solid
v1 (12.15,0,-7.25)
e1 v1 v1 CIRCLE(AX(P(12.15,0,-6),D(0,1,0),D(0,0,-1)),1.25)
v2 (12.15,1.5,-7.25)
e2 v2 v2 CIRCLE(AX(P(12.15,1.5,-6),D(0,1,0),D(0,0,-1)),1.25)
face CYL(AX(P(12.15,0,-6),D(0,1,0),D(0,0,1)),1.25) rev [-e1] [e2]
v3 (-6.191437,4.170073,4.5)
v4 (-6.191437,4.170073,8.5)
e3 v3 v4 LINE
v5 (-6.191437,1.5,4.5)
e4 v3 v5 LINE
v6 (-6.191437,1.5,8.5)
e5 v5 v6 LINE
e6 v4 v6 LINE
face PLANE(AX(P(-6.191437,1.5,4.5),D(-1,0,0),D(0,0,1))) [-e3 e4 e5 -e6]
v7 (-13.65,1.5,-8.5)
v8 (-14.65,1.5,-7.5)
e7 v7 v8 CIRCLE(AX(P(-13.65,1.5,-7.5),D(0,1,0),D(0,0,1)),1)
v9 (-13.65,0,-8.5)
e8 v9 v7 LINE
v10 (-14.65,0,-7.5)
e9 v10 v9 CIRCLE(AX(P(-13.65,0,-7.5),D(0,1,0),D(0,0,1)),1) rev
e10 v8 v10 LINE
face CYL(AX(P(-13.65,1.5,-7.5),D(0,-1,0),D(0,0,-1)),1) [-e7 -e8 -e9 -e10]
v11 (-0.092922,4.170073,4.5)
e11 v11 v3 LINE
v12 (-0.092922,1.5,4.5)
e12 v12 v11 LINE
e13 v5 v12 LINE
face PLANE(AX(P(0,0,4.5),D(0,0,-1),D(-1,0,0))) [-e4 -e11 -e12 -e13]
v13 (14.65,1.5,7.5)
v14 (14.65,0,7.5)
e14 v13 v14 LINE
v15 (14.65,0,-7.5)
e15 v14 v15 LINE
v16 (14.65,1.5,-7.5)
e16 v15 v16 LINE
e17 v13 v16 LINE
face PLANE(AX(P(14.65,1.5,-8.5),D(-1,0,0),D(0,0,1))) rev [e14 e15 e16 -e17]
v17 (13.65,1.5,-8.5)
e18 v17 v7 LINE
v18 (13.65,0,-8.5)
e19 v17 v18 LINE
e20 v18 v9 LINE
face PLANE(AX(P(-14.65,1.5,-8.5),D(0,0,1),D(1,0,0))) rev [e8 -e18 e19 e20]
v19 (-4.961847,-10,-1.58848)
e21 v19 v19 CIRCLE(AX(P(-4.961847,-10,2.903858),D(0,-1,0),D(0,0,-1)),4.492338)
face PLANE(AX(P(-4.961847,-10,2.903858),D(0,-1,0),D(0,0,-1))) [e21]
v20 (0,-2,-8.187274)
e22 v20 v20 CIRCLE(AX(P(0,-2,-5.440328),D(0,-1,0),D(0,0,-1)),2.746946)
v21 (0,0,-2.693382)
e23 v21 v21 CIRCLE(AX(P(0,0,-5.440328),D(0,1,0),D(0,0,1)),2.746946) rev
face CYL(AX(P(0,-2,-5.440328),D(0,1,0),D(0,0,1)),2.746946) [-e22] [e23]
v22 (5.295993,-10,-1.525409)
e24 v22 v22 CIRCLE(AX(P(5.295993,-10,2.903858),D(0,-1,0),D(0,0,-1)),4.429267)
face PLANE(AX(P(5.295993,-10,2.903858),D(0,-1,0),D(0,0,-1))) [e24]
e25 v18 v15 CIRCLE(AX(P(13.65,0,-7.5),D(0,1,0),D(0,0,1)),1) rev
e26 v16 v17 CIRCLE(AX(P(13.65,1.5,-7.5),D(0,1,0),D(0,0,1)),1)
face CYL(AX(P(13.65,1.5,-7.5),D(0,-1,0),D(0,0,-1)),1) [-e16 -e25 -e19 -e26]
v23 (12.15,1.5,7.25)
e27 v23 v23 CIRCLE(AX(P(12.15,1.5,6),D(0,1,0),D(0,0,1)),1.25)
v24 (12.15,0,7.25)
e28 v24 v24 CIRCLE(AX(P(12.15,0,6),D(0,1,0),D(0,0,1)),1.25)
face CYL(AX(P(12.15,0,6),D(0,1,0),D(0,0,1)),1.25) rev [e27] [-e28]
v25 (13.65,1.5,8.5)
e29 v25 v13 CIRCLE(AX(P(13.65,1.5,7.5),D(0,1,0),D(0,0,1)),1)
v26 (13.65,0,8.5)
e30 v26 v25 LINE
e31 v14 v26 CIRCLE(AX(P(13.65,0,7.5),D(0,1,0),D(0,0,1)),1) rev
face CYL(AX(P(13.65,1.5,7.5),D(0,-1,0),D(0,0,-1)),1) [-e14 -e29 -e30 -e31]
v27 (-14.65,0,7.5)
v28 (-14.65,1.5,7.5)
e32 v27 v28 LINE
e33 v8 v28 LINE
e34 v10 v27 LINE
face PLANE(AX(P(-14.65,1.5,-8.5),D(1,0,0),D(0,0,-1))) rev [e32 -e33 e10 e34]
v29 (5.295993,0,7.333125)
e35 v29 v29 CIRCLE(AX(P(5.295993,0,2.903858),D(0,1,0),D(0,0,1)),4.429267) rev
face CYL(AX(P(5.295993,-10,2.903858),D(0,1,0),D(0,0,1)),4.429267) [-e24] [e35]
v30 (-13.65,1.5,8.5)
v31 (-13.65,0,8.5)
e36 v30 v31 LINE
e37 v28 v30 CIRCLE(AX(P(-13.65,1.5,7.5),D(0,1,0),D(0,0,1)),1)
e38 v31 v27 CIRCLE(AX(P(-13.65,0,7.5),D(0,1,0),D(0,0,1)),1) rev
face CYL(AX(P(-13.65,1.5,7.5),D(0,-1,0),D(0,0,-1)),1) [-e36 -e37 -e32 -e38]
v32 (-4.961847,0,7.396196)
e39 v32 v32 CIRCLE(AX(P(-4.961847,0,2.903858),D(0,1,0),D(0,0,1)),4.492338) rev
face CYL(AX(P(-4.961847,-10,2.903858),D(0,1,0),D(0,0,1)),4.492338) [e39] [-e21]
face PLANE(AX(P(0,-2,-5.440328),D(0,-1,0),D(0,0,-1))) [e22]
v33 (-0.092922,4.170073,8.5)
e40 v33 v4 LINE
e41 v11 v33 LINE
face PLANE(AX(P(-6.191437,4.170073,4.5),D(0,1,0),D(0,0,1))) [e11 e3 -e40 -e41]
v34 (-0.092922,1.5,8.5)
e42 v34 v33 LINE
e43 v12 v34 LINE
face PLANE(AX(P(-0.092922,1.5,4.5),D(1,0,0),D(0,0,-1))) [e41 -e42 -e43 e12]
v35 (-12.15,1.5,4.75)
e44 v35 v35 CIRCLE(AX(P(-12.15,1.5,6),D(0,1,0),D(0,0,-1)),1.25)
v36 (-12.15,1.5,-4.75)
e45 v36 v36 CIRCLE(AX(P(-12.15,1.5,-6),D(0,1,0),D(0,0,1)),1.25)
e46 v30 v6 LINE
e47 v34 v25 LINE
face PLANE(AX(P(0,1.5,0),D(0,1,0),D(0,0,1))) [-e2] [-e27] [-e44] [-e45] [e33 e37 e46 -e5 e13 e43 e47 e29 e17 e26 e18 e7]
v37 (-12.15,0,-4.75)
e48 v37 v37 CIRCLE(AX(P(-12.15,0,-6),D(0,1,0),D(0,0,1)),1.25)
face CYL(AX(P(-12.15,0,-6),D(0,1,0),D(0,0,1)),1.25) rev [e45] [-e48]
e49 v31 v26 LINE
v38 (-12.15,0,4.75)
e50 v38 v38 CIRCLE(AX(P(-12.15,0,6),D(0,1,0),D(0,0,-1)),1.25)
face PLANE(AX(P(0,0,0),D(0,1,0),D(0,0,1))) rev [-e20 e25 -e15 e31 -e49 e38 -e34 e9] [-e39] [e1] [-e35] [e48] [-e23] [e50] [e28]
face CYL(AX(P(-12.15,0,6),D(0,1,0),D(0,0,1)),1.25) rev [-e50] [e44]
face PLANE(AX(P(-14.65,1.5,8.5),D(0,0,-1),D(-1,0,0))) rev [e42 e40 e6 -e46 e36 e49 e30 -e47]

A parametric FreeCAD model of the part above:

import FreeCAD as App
import Part
import Sketcher
Q = App.Units.Quantity


def edges_at(feature, points):
    """Names of the edges that pass closest to the given points."""
    edges = feature.Shape.Edges
    near = lambda p: min(range(len(edges)), key=lambda i: edges[i].distToShape(Part.Vertex(*p))[0])
    return sorted({f"Edge{near(p) + 1}" for p in points})

doc = App.newDocument("Part")
body = doc.addObject("PartDesign::Body", "Body")

sketch1 = body.newObject("Sketcher::SketchObject", "Sketch")
sketch1.AttachmentSupport = (doc.getObject("XZ_Plane"), [""])
sketch1.MapMode = "FlatFace"
sketch1.addGeometry([
    Part.LineSegment(App.Vector(-14.65, -8.5, 0), App.Vector(-14.65, 8.5, 0)),
    Part.LineSegment(App.Vector(-14.65, 8.5, 0), App.Vector(14.65, 8.5, 0)),
    Part.LineSegment(App.Vector(14.65, 8.5, 0), App.Vector(14.65, -8.5, 0)),
    Part.LineSegment(App.Vector(14.65, -8.5, 0), App.Vector(-14.65, -8.5, 0)),
], False)
sketch1.addConstraint([
    Sketcher.Constraint("Coincident", 0, 2, 1, 1),
    Sketcher.Constraint("Coincident", 1, 2, 2, 1),
    Sketcher.Constraint("Coincident", 2, 2, 3, 1),
    Sketcher.Constraint("Coincident", 3, 2, 0, 1),
    Sketcher.Constraint("Vertical", 0),
    Sketcher.Constraint("Horizontal", 1),
    Sketcher.Constraint("Vertical", 2),
    Sketcher.Constraint("Horizontal", 3),
    Sketcher.Constraint("Symmetric", 0, 2, 2, 2, -1, 1),
    Sketcher.Constraint("DistanceY", 0, 1, 0, 2, Q("17 mm")),
    Sketcher.Constraint("DistanceX", 1, 1, 1, 2, Q("29.3 mm")),
])
pad1 = body.newObject("PartDesign::Pad", "Pad")
pad1.Profile = sketch1
pad1.Length = 1.5
pad1.Reversed = True

sketch2 = body.newObject("Sketcher::SketchObject", "Sketch001")
sketch2.AttachmentSupport = (doc.getObject("XZ_Plane"), [""])
sketch2.MapMode = "FlatFace"
sketch2.AttachmentOffset = App.Placement(App.Vector(0, 0, -1.5), App.Rotation())
sketch2.addGeometry([
    Part.Circle(App.Vector(-12.15, -6, 0), App.Vector(0, 0, 1), 1.25),
    Part.Circle(App.Vector(12.15, -6, 0), App.Vector(0, 0, 1), 1.25),
    Part.Circle(App.Vector(12.15, 6, 0), App.Vector(0, 0, 1), 1.25),
    Part.Circle(App.Vector(-12.15, 6, 0), App.Vector(0, 0, 1), 1.25),
], False)
sketch2.addConstraint([
    Sketcher.Constraint("Equal", 0, 1),
    Sketcher.Constraint("Equal", 1, 2),
    Sketcher.Constraint("Equal", 2, 3),
    Sketcher.Constraint("Symmetric", 0, 3, 2, 3, -1, 1),
    Sketcher.Constraint("Symmetric", 1, 3, 3, 3, -1, 1),
    Sketcher.Constraint("Symmetric", 0, 3, 1, 3, -2),
    Sketcher.Constraint("Diameter", 0, Q("2.5 mm")),
    Sketcher.Constraint("DistanceY", 0, 3, -1, 1, Q("6 mm")),
    Sketcher.Constraint("DistanceX", 0, 3, 1, 3, Q("24.3 mm")),
])
pocket1 = body.newObject("PartDesign::Pocket", "Pocket")
pocket1.Profile = sketch2
pocket1.Type = "ThroughAll"
pocket1.Reversed = True

sketch3 = body.newObject("Sketcher::SketchObject", "Sketch002")
sketch3.AttachmentSupport = (doc.getObject("XY_Plane"), [""])
sketch3.MapMode = "FlatFace"
sketch3.AttachmentOffset = App.Placement(App.Vector(0, 0, 8.5), App.Rotation())
sketch3.addGeometry([
    Part.LineSegment(App.Vector(-6.191437, 4.170073, 0), App.Vector(-6.191437, 1.5, 0)),
    Part.LineSegment(App.Vector(-6.191437, 1.5, 0), App.Vector(-0.092922, 1.5, 0)),
    Part.LineSegment(App.Vector(-0.092922, 1.5, 0), App.Vector(-0.092922, 4.170073, 0)),
    Part.LineSegment(App.Vector(-0.092922, 4.170073, 0), App.Vector(-6.191437, 4.170073, 0)),
], False)
sketch3.addConstraint([
    Sketcher.Constraint("Coincident", 0, 2, 1, 1),
    Sketcher.Constraint("Coincident", 1, 2, 2, 1),
    Sketcher.Constraint("Coincident", 2, 2, 3, 1),
    Sketcher.Constraint("Coincident", 3, 2, 0, 1),
    Sketcher.Constraint("Vertical", 0),
    Sketcher.Constraint("Horizontal", 1),
    Sketcher.Constraint("Vertical", 2),
    Sketcher.Constraint("Horizontal", 3),
    Sketcher.Constraint("DistanceY", -1, 1, 0, 2, Q("1.5 mm")),
    Sketcher.Constraint("DistanceX", 1, 1, 1, 2, Q("6.098515 mm")),
    Sketcher.Constraint("DistanceY", 0, 2, 0, 1, Q("2.670073 mm")),
    Sketcher.Constraint("DistanceX", 0, 2, -1, 1, Q("6.191437 mm")),
])
pad2 = body.newObject("PartDesign::Pad", "Pad001")
pad2.Profile = sketch3
pad2.Length = 4
pad2.Reversed = True

sketch4 = body.newObject("Sketcher::SketchObject", "Sketch003")
sketch4.AttachmentSupport = (doc.getObject("XZ_Plane"), [""])
sketch4.MapMode = "FlatFace"
sketch4.addGeometry([
    Part.Circle(App.Vector(-4.961847, 2.903858, 0), App.Vector(0, 0, 1), 4.492338),
    Part.Circle(App.Vector(5.295993, 2.903858, 0), App.Vector(0, 0, 1), 4.429267),
], False)
sketch4.addConstraint([
    Sketcher.Constraint("Horizontal", 0, 3, 1, 3),
    Sketcher.Constraint("Diameter", 0, Q("8.984676 mm")),
    Sketcher.Constraint("Diameter", 1, Q("8.858534 mm")),
    Sketcher.Constraint("DistanceX", 0, 3, 1, 3, Q("10.257839 mm")),
    Sketcher.Constraint("DistanceX", 0, 3, -1, 1, Q("4.961847 mm")),
    Sketcher.Constraint("DistanceY", -1, 1, 0, 3, Q("2.903858 mm")),
])
pad3 = body.newObject("PartDesign::Pad", "Pad002")
pad3.Profile = sketch4
pad3.Length = 10

sketch5 = body.newObject("Sketcher::SketchObject", "Sketch004")
sketch5.AttachmentSupport = (doc.getObject("XZ_Plane"), [""])
sketch5.MapMode = "FlatFace"
sketch5.addGeometry(Part.Circle(App.Vector(0, -5.440328, 0), App.Vector(0, 0, 1), 2.746946), False)
sketch5.addConstraint([
    Sketcher.Constraint("PointOnObject", 0, 3, -2),
    Sketcher.Constraint("Diameter", 0, Q("5.493892 mm")),
    Sketcher.Constraint("DistanceY", 0, 3, -1, 1, Q("5.440328 mm")),
])
pad4 = body.newObject("PartDesign::Pad", "Pad003")
pad4.Profile = sketch5
pad4.Length = 2
doc.recompute()

fillet = body.newObject("PartDesign::Fillet", "Fillet")
fillet.Base = (pad4, edges_at(pad4, [
    (14.65, 0.75, 8.5),
    (-14.65, 0.75, 8.5),
    (-14.65, 0.75, -8.5),
    (14.65, 0.75, -8.5),
]))
fillet.Radius = 1

doc.recompute()
